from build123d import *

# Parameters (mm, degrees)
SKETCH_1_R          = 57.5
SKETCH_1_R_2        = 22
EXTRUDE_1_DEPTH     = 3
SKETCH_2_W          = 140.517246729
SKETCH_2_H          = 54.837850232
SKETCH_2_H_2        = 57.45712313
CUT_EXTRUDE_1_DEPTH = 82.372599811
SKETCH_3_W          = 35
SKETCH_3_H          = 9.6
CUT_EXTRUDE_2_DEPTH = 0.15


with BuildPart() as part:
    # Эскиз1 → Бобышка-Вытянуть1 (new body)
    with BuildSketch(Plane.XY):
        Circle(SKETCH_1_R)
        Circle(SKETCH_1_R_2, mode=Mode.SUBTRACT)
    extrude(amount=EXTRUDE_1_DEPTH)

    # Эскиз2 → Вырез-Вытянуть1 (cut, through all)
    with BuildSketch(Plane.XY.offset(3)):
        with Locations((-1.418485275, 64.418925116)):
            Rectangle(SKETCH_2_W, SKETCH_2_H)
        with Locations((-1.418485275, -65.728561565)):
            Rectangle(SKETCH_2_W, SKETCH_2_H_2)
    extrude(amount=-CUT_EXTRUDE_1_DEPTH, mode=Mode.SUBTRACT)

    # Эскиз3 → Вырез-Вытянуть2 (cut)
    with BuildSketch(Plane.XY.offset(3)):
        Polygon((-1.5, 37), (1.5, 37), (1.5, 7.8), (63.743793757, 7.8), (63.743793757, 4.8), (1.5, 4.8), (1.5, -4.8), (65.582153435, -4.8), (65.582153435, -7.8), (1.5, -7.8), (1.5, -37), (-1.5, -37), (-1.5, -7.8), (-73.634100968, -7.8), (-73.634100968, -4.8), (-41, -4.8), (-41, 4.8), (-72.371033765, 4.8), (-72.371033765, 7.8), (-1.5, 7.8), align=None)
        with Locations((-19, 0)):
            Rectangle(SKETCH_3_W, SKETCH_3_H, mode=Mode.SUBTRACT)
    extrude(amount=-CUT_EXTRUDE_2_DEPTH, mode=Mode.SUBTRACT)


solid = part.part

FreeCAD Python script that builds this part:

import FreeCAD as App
import Part
import Sketcher

V = App.Vector
Q = App.Units.Quantity


def add_polygon(sketch, points):
    """Adds a closed chain of lines whose ends are joined by coincident constraints."""
    first, n = sketch.GeometryCount, len(points)
    for a, b in zip(points, points[1:] + points[:1]):
        sketch.addGeometry(Part.LineSegment(App.Vector(*a, 0), App.Vector(*b, 0)), False)
    for i in range(n):
        sketch.addConstraint(Sketcher.Constraint("Coincident", first + i, 2, first + (i + 1) % n, 1))

doc = App.newDocument("Part")
body = doc.addObject("PartDesign::Body", "Body")

# Sketch on XY plane
sketch1 = body.newObject("Sketcher::SketchObject", "Sketch")
sketch1.AttachmentSupport = (doc.getObject("XY_Plane"), [""])
sketch1.MapMode = "FlatFace"
sketch1.addGeometry([
    Part.Circle(V(0, 0, 0), V(0, 0, 1), 58),
    Part.Circle(V(0, 0, 0), V(0, 0, 1), 22),
], False)
sketch1.addConstraint([
    Sketcher.Constraint("Coincident", 0, 3, -1, 1),
    Sketcher.Constraint("Coincident", 1, 3, -1, 1),
    Sketcher.Constraint("Diameter", 0, Q("115 mm")),
    Sketcher.Constraint("Diameter", 1, Q("44 mm")),
])
pad1 = body.newObject("PartDesign::Pad", "Pad")
pad1.Profile = sketch1
pad1.Length = 3

# Sketch on XY plane
sketch2 = body.newObject("Sketcher::SketchObject", "Sketch001")
sketch2.AttachmentSupport = (doc.getObject("XY_Plane"), [""])
sketch2.MapMode = "FlatFace"
sketch2.AttachmentOffset = App.Placement(V(0, 0, 3), App.Rotation())
add_polygon(sketch2, [(-72, 92), (-72, 37), (69, 37), (69, 92)])  # lines 0-3
add_polygon(sketch2, [(-72, -37), (-72, -94), (69, -94), (69, -37)])  # lines 4-7
sketch2.addConstraint([
    Sketcher.Constraint("Vertical", 0),
    Sketcher.Constraint("Horizontal", 1),
    Sketcher.Constraint("Vertical", 2),
    Sketcher.Constraint("Horizontal", 3),
    Sketcher.Constraint("Vertical", 4),
    Sketcher.Constraint("Horizontal", 5),
    Sketcher.Constraint("Vertical", 6),
    Sketcher.Constraint("Horizontal", 7),
    Sketcher.Constraint("Symmetric", 1, 2, 6, 2, -1),
    Sketcher.Constraint("Vertical", 3, 2, 4, 2),
    Sketcher.Constraint("DistanceY", -1, 1, 0, 2, Q("37 mm")),
    Sketcher.Constraint("DistanceY", 0, 2, 0, 1, Q("54.83785 mm")),
    Sketcher.Constraint("DistanceX", 1, 1, 1, 2, Q("140.517247 mm")),
    Sketcher.Constraint("DistanceY", 4, 2, 4, 1, Q("57.457123 mm")),
    Sketcher.Constraint("DistanceX", 0, 2, -1, 1, Q("71.677109 mm")),
])
pocket1 = body.newObject("PartDesign::Pocket", "Pocket")
pocket1.Profile = sketch2
pocket1.Type = "ThroughAll"

# Sketch on XY plane
sketch3 = body.newObject("Sketcher::SketchObject", "Sketch002")
sketch3.AttachmentSupport = (doc.getObject("XY_Plane"), [""])
sketch3.MapMode = "FlatFace"
sketch3.AttachmentOffset = App.Placement(V(0, 0, 3), App.Rotation())
add_polygon(sketch3, [(1.5, 37), (-1.5, 37), (-1.5, 7.8), (-72.4, 7.8), (-72.4, 4.8), (-41, 4.8), (-41, -4.8), (-73.6, -4.8), (-73.6, -7.8), (-1.5, -7.8), (-1.5, -37), (1.5, -37), (1.5, -7.8), (65.6, -7.8), (65.6, -4.8), (1.5, -4.8), (1.5, 4.8), (63.7, 4.8), (63.7, 7.8), (1.5, 7.8)])  # lines 0-19
add_polygon(sketch3, [(-36.5, -4.8), (-36.5, 4.8), (-1.5, 4.8), (-1.5, -4.8)])  # lines 20-23
sketch3.addConstraint([
    Sketcher.Constraint("Horizontal", 0),
    Sketcher.Constraint("Vertical", 1),
    Sketcher.Constraint("Horizontal", 2),
    Sketcher.Constraint("Vertical", 3),
    Sketcher.Constraint("Horizontal", 4),
    Sketcher.Constraint("Vertical", 5),
    Sketcher.Constraint("Horizontal", 6),
    Sketcher.Constraint("Vertical", 7),
    Sketcher.Constraint("Horizontal", 8),
    Sketcher.Constraint("Vertical", 9),
    Sketcher.Constraint("Horizontal", 10),
    Sketcher.Constraint("Vertical", 11),
    Sketcher.Constraint("Horizontal", 12),
    Sketcher.Constraint("Vertical", 13),
    Sketcher.Constraint("Horizontal", 14),
    Sketcher.Constraint("Vertical", 15),
    Sketcher.Constraint("Horizontal", 16),
    Sketcher.Constraint("Vertical", 17),
    Sketcher.Constraint("Horizontal", 18),
    Sketcher.Constraint("Vertical", 19),
    Sketcher.Constraint("Vertical", 20),
    Sketcher.Constraint("Horizontal", 21),
    Sketcher.Constraint("Vertical", 22),
    Sketcher.Constraint("Horizontal", 23),
    Sketcher.Constraint("Symmetric", 0, 2, 10, 2, -1, 1),
    Sketcher.Constraint("Symmetric", 8, 2, 18, 2, -1, 1),
    Sketcher.Constraint("Symmetric", 14, 2, 21, 2, -1, 1),
    Sketcher.Constraint("Symmetric", 8, 2, 11, 2, -2),
    Sketcher.Constraint("Horizontal", 6, 2, 13, 2),
    Sketcher.Constraint("Horizontal", 4, 2, 15, 2),
    Sketcher.Constraint("Horizontal", 2, 2, 17, 2),
    Sketcher.Constraint("Horizontal", 16, 2, 20, 2),
    Sketcher.Constraint("Horizontal", 14, 2, 22, 2),
    Sketcher.Constraint("Vertical", 11, 2, 14, 2),
    Sketcher.Constraint("Equal", 10, 3),
    Sketcher.Constraint("DistanceX", 0, 2, 0, 1, Q("3 mm")),
    Sketcher.Constraint("DistanceX", 21, 1, 21, 2, Q("35 mm")),
    Sketcher.Constraint("DistanceY", 1, 2, 1, 1, Q("29.2 mm")),
    Sketcher.Constraint("DistanceY", 5, 2, 5, 1, Q("9.6 mm")),
    Sketcher.Constraint("DistanceX", 4, 2, -1, 1, Q("41 mm")),
    Sketcher.Constraint("DistanceX", 6, 2, 6, 1, Q("32.634101 mm")),
    Sketcher.Constraint("DistanceX", 2, 2, 2, 1, Q("70.871034 mm")),
    Sketcher.Constraint("DistanceX", 12, 1, 12, 2, Q("64.082153 mm")),
    Sketcher.Constraint("DistanceX", 16, 1, 16, 2, Q("62.243794 mm")),
])
pocket2 = body.newObject("PartDesign::Pocket", "Pocket001")
pocket2.Profile = sketch3
pocket2.Length = 0.15

doc.recompute()
